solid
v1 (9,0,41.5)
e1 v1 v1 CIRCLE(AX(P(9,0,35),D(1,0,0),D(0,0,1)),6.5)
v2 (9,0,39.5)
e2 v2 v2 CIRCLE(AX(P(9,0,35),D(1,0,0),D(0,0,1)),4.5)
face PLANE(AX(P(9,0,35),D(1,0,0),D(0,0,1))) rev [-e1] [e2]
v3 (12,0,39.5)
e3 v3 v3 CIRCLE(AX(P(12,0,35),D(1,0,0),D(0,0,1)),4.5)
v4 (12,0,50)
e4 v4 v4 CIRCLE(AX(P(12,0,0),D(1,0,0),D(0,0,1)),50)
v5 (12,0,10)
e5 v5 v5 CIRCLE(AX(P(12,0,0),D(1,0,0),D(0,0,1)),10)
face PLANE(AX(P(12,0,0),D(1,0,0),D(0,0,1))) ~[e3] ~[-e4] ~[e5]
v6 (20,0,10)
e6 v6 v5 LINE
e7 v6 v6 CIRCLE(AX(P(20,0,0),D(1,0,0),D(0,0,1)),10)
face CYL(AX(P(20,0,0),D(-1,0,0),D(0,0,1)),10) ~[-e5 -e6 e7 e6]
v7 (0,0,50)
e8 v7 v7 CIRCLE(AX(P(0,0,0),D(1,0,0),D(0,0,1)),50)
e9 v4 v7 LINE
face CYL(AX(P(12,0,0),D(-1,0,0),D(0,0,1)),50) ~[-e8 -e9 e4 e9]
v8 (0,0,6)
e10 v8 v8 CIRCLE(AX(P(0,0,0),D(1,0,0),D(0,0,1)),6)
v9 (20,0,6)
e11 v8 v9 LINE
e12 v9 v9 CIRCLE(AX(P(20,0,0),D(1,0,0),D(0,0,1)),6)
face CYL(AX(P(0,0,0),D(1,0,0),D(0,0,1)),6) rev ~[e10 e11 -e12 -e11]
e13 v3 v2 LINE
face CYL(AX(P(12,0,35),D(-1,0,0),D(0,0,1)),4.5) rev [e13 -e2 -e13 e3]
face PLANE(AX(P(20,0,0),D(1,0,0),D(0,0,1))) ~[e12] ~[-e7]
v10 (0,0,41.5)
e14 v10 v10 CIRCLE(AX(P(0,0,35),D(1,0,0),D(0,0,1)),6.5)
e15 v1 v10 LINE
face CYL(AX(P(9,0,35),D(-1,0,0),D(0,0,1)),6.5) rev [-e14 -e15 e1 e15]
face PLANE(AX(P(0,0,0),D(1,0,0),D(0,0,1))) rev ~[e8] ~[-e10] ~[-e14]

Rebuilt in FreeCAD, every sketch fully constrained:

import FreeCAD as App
import Part
import Sketcher
from FreeCAD import Vector


def add_polygon(sketch, points):
    """Adds a closed chain of lines whose ends are joined by coincident constraints."""
    first, n = sketch.GeometryCount, len(points)
    for a, b in zip(points, points[1:] + points[:1]):
        sketch.addGeometry(Part.LineSegment(App.Vector(*a, 0), App.Vector(*b, 0)), False)
    for i in range(n):
        sketch.addConstraint(Sketcher.Constraint("Coincident", first + i, 2, first + (i + 1) % n, 1))

doc = App.newDocument("Part")
body = doc.addObject("PartDesign::Body", "Body")

# Sketch on XZ plane
sketch1 = doc.addObject("Sketcher::SketchObject", "Sketch")
body.addObject(sketch1)
sketch1.AttachmentSupport = (doc.XZ_Plane, [""])
sketch1.MapMode = "FlatFace"
add_polygon(sketch1, [(0, 50), (0, 6), (20, 6), (20, 10), (12, 10), (12, 50)])  # lines 0-5
sketch1.addConstraint(Sketcher.Constraint("Vertical", 0))
sketch1.addConstraint(Sketcher.Constraint("Horizontal", 1))
sketch1.addConstraint(Sketcher.Constraint("Vertical", 2))
sketch1.addConstraint(Sketcher.Constraint("Horizontal", 3))
sketch1.addConstraint(Sketcher.Constraint("Vertical", 4))
sketch1.addConstraint(Sketcher.Constraint("Horizontal", 5))
sketch1.addConstraint(Sketcher.Constraint("PointOnObject", 0, 2, -2))
sketch1.addConstraint(Sketcher.Constraint("DistanceX", 1, 1, 1, 2, 20.0))
sketch1.addConstraint(Sketcher.Constraint("DistanceX", 3, 2, 3, 1, 8.0))
sketch1.addConstraint(Sketcher.Constraint("DistanceY", 0, 2, 0, 1, 44.0))
sketch1.addConstraint(Sketcher.Constraint("DistanceY", 2, 1, 2, 2, 4.0))
sketch1.addConstraint(Sketcher.Constraint("DistanceY", -1, 1, 0, 2, 6.0))
revolution = doc.addObject("PartDesign::Revolution", "Revolution")
body.addObject(revolution)
revolution.Profile = sketch1
revolution.ReferenceAxis = (sketch1, ["H_Axis"])
revolution.Angle = 360

# Sketch on XZ plane
sketch2 = doc.addObject("Sketcher::SketchObject", "Sketch001")
body.addObject(sketch2)
sketch2.AttachmentSupport = (doc.XZ_Plane, [""])
sketch2.MapMode = "FlatFace"
add_polygon(sketch2, [(0, 41.5), (0, 35), (12, 35), (12, 39.5), (9, 39.5), (9, 41.5)])  # lines 0-5
sketch2.addGeometry(Part.LineSegment(Vector(0, 35, 0), Vector(12, 35, 0)), True)  # axis
sketch2.addConstraint(Sketcher.Constraint("Vertical", 0))
sketch2.addConstraint(Sketcher.Constraint("Horizontal", 1))
sketch2.addConstraint(Sketcher.Constraint("Vertical", 2))
sketch2.addConstraint(Sketcher.Constraint("Horizontal", 3))
sketch2.addConstraint(Sketcher.Constraint("Vertical", 4))
sketch2.addConstraint(Sketcher.Constraint("Horizontal", 5))
sketch2.addConstraint(Sketcher.Constraint("Horizontal", 6))
sketch2.addConstraint(Sketcher.Constraint("Coincident", 6, 1, 0, 2))
sketch2.addConstraint(Sketcher.Constraint("PointOnObject", 0, 2, -2))
sketch2.addConstraint(Sketcher.Constraint("Vertical", 2, 2, 6, 2))
sketch2.addConstraint(Sketcher.Constraint("DistanceX", 1, 1, 1, 2, 12.0))
sketch2.addConstraint(Sketcher.Constraint("DistanceX", 3, 2, 3, 1, 3.0))
sketch2.addConstraint(Sketcher.Constraint("DistanceY", 4, 1, 4, 2, 2.0))
sketch2.addConstraint(Sketcher.Constraint("DistanceY", 0, 2, 0, 1, 6.5))
sketch2.addConstraint(Sketcher.Constraint("DistanceY", -1, 1, 0, 2, 35.0))
groove = doc.addObject("PartDesign::Groove", "Groove")
body.addObject(groove)
groove.Profile = sketch2
groove.ReferenceAxis = (sketch2, ["Axis0"])
groove.Angle = 360

doc.recompute()
